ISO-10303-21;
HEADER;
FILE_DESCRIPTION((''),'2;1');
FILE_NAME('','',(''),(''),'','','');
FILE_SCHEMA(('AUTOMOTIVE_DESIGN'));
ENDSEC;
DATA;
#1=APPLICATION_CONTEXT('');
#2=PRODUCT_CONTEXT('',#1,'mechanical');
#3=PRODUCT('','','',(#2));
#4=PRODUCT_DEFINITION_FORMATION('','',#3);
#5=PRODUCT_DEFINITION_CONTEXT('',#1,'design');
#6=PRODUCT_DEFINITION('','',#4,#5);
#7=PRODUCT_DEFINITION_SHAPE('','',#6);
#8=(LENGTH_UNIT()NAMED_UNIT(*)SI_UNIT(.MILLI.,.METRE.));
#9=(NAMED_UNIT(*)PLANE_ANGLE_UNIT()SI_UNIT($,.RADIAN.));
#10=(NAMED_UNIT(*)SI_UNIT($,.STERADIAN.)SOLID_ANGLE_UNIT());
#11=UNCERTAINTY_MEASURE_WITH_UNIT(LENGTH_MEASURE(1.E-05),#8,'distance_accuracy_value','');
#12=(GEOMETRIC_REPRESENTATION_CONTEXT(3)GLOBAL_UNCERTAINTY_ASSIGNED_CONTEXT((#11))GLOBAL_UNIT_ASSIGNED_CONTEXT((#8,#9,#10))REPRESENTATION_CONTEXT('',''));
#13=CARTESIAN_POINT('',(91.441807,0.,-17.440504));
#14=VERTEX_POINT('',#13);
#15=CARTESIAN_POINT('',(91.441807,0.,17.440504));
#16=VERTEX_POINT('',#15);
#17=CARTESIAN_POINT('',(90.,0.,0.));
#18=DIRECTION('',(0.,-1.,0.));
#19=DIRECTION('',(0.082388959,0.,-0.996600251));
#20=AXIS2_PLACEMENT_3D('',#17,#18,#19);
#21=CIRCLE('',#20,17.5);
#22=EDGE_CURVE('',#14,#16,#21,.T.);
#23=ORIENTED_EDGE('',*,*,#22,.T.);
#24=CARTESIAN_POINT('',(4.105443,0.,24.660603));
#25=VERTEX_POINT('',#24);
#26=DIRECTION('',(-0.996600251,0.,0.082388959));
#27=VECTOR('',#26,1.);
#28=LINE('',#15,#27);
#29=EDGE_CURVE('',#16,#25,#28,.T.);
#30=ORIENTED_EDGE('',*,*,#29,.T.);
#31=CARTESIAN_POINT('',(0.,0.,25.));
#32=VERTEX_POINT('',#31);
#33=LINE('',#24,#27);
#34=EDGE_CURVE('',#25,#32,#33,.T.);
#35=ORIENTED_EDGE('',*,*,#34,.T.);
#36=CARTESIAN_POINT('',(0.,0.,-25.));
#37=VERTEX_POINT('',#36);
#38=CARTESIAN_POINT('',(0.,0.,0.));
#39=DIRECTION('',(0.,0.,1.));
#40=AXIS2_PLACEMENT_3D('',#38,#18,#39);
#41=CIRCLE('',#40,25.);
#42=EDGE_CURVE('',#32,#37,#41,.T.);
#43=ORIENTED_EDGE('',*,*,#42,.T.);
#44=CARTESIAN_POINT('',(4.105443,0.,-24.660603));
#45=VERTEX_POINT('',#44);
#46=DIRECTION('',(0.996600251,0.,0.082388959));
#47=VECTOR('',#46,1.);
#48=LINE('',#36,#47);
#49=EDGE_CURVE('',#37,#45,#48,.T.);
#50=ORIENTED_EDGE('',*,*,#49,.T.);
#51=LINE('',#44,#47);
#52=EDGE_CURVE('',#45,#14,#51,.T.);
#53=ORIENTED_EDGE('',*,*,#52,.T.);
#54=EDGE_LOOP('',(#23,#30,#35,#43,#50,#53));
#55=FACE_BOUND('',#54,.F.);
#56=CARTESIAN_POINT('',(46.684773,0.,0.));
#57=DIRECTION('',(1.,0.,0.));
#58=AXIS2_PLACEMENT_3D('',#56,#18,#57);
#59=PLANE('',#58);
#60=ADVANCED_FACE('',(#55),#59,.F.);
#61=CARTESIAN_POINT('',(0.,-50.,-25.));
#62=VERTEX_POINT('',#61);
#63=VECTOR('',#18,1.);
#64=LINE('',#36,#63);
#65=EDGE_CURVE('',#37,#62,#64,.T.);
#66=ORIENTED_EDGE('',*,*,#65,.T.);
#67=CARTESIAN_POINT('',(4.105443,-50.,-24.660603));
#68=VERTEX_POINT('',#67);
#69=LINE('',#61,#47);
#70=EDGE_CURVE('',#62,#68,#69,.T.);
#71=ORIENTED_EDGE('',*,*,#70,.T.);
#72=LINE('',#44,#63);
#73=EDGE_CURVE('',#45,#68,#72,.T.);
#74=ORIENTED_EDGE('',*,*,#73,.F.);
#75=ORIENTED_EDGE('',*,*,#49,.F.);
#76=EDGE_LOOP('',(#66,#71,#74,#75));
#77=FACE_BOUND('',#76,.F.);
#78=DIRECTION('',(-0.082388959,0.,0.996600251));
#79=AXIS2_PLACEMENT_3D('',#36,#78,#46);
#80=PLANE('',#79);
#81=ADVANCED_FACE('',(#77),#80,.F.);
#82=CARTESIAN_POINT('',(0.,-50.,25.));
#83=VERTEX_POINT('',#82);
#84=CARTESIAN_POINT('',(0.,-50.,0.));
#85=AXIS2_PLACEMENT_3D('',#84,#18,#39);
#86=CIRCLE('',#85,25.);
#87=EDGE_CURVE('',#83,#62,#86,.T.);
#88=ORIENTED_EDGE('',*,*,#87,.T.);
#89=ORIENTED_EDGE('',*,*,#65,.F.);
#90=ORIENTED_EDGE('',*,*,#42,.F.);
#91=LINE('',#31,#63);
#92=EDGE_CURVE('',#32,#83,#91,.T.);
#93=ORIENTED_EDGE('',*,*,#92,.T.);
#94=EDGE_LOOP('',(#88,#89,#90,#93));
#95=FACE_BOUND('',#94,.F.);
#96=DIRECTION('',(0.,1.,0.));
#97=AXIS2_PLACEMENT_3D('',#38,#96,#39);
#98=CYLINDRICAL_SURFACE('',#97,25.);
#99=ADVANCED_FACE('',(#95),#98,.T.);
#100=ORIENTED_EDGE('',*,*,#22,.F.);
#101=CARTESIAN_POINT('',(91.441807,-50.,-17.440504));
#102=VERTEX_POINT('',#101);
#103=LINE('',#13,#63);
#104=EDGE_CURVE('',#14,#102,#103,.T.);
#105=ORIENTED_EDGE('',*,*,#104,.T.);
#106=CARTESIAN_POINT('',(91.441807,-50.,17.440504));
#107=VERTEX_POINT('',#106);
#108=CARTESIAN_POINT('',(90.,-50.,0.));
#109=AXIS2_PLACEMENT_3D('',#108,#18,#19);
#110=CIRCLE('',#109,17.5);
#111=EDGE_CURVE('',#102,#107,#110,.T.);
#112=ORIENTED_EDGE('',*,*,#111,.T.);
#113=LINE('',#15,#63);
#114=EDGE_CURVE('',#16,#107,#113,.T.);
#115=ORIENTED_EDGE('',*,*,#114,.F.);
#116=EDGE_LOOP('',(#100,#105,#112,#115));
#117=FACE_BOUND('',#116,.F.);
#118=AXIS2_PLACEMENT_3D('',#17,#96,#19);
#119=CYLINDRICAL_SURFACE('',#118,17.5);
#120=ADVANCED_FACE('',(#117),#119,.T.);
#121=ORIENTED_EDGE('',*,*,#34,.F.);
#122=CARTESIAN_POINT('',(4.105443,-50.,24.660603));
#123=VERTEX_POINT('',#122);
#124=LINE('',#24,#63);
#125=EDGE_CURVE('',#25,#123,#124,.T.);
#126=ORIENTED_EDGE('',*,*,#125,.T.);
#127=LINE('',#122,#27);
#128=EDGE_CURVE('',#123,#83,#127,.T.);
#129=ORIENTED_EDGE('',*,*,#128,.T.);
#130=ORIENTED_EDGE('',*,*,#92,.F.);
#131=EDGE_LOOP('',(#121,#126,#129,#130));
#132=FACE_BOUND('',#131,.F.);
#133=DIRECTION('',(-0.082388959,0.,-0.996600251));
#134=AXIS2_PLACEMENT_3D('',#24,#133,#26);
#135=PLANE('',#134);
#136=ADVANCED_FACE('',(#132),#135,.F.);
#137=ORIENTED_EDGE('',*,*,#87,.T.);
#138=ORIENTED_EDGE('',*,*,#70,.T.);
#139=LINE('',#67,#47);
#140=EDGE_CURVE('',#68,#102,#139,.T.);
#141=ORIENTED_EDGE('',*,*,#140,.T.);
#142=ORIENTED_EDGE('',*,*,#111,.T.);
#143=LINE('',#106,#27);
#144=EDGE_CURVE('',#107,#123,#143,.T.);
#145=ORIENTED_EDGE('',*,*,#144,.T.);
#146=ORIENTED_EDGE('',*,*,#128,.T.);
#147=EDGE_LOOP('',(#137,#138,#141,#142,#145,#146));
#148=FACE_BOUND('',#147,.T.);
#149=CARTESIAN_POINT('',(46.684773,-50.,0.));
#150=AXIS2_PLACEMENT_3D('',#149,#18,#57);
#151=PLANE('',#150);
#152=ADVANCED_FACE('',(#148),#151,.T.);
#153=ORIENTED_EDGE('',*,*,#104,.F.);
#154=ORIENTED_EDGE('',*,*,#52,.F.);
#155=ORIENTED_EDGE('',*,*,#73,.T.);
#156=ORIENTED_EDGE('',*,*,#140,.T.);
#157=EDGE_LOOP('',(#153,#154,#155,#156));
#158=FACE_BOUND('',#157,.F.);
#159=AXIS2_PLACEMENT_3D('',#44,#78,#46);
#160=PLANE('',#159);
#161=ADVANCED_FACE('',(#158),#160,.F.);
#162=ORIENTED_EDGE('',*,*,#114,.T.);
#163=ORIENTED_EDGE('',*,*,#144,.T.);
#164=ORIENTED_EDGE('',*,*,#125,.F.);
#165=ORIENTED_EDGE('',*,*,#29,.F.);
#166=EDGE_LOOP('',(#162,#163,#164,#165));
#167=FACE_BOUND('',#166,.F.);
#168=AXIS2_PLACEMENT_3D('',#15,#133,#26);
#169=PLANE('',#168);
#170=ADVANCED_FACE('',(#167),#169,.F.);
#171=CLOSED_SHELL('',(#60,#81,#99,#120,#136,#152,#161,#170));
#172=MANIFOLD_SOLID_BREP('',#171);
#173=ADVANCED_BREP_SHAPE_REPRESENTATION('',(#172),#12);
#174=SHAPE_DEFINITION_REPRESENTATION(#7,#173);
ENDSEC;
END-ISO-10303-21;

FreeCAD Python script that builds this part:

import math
import FreeCAD as App
import Part
import Sketcher

V = App.Vector
Q = App.Units.Quantity

doc = App.newDocument("Part")
params = doc.addObject("Spreadsheet::Sheet", "Params")
for row, (alias, value) in enumerate([
    ("sketch1_radius", "25 mm"),
    ("sketch1_radius2", "17.5 mm"),
    ("pad1_length", "50 mm"),
], start=1):
    params.set(f"A{row}", alias)
    params.set(f"B{row}", "=" + value)
    params.setAlias(f"B{row}", alias)

body = doc.addObject("PartDesign::Body", "Body")

# Sketch on XZ plane
sketch1 = body.newObject("Sketcher::SketchObject", "Sketch")
sketch1.AttachmentSupport = (doc.getObject("XZ_Plane"), [""])
sketch1.MapMode = "FlatFace"
sketch1.addGeometry([
    Part.LineSegment(V(91.4, 17.4, 0), V(4.1, 24.7, 0)),  # 0
    Part.LineSegment(V(4.1, 24.7, 0), V(0, 25, 0)),  # 1
    Part.ArcOfCircle(Part.Circle(V(0, 0, 0), V(0, 0, 1), 25), math.radians(90), math.radians(270)),  # 2
    Part.LineSegment(V(0, -25, 0), V(4.1, -24.7, 0)),  # 3
    Part.LineSegment(V(4.1, -24.7, 0), V(91.4, -17.4, 0)),  # 4
    Part.ArcOfCircle(Part.Circle(V(90, 0, 0), V(0, 0, 1), 17.5), math.radians(-85), math.radians(85)),  # 5
], False)
sketch1.addConstraint([
    Sketcher.Constraint("Coincident", 0, 2, 1, 1),
    Sketcher.Constraint("Coincident", 1, 2, 2, 1),
    Sketcher.Constraint("Coincident", 2, 2, 3, 1),
    Sketcher.Constraint("Coincident", 3, 2, 4, 1),
    Sketcher.Constraint("Tangent", 4, 2, 5, 1),
    Sketcher.Constraint("Tangent", 5, 2, 0, 1),
    Sketcher.Constraint("Coincident", 2, 3, -1, 1),
    Sketcher.Constraint("Symmetric", 0, 2, 3, 2, -1),
    Sketcher.Constraint("PointOnObject", 5, 3, -1),
    Sketcher.Constraint("PointOnObject", 1, 2, -2),
    Sketcher.Constraint("PointOnObject", 2, 2, -2),
    Sketcher.Constraint("Parallel", 0, 1),
    Sketcher.Constraint("Radius", 2, Q("25 mm")),
    Sketcher.Constraint("Radius", 5, Q("17.5 mm")),
    Sketcher.Constraint("DistanceX", -1, 1, 5, 3, Q("90 mm")),
    Sketcher.Constraint("Distance", 0, Q("87.634299 mm")),
])
sketch1.setExpression("Constraints[12]", "Params.sketch1_radius")
sketch1.setExpression("Constraints[13]", "Params.sketch1_radius2")
pad1 = body.newObject("PartDesign::Pad", "Pad")
pad1.Profile = sketch1
pad1.setExpression("Length", "Params.pad1_length")

doc.recompute()
